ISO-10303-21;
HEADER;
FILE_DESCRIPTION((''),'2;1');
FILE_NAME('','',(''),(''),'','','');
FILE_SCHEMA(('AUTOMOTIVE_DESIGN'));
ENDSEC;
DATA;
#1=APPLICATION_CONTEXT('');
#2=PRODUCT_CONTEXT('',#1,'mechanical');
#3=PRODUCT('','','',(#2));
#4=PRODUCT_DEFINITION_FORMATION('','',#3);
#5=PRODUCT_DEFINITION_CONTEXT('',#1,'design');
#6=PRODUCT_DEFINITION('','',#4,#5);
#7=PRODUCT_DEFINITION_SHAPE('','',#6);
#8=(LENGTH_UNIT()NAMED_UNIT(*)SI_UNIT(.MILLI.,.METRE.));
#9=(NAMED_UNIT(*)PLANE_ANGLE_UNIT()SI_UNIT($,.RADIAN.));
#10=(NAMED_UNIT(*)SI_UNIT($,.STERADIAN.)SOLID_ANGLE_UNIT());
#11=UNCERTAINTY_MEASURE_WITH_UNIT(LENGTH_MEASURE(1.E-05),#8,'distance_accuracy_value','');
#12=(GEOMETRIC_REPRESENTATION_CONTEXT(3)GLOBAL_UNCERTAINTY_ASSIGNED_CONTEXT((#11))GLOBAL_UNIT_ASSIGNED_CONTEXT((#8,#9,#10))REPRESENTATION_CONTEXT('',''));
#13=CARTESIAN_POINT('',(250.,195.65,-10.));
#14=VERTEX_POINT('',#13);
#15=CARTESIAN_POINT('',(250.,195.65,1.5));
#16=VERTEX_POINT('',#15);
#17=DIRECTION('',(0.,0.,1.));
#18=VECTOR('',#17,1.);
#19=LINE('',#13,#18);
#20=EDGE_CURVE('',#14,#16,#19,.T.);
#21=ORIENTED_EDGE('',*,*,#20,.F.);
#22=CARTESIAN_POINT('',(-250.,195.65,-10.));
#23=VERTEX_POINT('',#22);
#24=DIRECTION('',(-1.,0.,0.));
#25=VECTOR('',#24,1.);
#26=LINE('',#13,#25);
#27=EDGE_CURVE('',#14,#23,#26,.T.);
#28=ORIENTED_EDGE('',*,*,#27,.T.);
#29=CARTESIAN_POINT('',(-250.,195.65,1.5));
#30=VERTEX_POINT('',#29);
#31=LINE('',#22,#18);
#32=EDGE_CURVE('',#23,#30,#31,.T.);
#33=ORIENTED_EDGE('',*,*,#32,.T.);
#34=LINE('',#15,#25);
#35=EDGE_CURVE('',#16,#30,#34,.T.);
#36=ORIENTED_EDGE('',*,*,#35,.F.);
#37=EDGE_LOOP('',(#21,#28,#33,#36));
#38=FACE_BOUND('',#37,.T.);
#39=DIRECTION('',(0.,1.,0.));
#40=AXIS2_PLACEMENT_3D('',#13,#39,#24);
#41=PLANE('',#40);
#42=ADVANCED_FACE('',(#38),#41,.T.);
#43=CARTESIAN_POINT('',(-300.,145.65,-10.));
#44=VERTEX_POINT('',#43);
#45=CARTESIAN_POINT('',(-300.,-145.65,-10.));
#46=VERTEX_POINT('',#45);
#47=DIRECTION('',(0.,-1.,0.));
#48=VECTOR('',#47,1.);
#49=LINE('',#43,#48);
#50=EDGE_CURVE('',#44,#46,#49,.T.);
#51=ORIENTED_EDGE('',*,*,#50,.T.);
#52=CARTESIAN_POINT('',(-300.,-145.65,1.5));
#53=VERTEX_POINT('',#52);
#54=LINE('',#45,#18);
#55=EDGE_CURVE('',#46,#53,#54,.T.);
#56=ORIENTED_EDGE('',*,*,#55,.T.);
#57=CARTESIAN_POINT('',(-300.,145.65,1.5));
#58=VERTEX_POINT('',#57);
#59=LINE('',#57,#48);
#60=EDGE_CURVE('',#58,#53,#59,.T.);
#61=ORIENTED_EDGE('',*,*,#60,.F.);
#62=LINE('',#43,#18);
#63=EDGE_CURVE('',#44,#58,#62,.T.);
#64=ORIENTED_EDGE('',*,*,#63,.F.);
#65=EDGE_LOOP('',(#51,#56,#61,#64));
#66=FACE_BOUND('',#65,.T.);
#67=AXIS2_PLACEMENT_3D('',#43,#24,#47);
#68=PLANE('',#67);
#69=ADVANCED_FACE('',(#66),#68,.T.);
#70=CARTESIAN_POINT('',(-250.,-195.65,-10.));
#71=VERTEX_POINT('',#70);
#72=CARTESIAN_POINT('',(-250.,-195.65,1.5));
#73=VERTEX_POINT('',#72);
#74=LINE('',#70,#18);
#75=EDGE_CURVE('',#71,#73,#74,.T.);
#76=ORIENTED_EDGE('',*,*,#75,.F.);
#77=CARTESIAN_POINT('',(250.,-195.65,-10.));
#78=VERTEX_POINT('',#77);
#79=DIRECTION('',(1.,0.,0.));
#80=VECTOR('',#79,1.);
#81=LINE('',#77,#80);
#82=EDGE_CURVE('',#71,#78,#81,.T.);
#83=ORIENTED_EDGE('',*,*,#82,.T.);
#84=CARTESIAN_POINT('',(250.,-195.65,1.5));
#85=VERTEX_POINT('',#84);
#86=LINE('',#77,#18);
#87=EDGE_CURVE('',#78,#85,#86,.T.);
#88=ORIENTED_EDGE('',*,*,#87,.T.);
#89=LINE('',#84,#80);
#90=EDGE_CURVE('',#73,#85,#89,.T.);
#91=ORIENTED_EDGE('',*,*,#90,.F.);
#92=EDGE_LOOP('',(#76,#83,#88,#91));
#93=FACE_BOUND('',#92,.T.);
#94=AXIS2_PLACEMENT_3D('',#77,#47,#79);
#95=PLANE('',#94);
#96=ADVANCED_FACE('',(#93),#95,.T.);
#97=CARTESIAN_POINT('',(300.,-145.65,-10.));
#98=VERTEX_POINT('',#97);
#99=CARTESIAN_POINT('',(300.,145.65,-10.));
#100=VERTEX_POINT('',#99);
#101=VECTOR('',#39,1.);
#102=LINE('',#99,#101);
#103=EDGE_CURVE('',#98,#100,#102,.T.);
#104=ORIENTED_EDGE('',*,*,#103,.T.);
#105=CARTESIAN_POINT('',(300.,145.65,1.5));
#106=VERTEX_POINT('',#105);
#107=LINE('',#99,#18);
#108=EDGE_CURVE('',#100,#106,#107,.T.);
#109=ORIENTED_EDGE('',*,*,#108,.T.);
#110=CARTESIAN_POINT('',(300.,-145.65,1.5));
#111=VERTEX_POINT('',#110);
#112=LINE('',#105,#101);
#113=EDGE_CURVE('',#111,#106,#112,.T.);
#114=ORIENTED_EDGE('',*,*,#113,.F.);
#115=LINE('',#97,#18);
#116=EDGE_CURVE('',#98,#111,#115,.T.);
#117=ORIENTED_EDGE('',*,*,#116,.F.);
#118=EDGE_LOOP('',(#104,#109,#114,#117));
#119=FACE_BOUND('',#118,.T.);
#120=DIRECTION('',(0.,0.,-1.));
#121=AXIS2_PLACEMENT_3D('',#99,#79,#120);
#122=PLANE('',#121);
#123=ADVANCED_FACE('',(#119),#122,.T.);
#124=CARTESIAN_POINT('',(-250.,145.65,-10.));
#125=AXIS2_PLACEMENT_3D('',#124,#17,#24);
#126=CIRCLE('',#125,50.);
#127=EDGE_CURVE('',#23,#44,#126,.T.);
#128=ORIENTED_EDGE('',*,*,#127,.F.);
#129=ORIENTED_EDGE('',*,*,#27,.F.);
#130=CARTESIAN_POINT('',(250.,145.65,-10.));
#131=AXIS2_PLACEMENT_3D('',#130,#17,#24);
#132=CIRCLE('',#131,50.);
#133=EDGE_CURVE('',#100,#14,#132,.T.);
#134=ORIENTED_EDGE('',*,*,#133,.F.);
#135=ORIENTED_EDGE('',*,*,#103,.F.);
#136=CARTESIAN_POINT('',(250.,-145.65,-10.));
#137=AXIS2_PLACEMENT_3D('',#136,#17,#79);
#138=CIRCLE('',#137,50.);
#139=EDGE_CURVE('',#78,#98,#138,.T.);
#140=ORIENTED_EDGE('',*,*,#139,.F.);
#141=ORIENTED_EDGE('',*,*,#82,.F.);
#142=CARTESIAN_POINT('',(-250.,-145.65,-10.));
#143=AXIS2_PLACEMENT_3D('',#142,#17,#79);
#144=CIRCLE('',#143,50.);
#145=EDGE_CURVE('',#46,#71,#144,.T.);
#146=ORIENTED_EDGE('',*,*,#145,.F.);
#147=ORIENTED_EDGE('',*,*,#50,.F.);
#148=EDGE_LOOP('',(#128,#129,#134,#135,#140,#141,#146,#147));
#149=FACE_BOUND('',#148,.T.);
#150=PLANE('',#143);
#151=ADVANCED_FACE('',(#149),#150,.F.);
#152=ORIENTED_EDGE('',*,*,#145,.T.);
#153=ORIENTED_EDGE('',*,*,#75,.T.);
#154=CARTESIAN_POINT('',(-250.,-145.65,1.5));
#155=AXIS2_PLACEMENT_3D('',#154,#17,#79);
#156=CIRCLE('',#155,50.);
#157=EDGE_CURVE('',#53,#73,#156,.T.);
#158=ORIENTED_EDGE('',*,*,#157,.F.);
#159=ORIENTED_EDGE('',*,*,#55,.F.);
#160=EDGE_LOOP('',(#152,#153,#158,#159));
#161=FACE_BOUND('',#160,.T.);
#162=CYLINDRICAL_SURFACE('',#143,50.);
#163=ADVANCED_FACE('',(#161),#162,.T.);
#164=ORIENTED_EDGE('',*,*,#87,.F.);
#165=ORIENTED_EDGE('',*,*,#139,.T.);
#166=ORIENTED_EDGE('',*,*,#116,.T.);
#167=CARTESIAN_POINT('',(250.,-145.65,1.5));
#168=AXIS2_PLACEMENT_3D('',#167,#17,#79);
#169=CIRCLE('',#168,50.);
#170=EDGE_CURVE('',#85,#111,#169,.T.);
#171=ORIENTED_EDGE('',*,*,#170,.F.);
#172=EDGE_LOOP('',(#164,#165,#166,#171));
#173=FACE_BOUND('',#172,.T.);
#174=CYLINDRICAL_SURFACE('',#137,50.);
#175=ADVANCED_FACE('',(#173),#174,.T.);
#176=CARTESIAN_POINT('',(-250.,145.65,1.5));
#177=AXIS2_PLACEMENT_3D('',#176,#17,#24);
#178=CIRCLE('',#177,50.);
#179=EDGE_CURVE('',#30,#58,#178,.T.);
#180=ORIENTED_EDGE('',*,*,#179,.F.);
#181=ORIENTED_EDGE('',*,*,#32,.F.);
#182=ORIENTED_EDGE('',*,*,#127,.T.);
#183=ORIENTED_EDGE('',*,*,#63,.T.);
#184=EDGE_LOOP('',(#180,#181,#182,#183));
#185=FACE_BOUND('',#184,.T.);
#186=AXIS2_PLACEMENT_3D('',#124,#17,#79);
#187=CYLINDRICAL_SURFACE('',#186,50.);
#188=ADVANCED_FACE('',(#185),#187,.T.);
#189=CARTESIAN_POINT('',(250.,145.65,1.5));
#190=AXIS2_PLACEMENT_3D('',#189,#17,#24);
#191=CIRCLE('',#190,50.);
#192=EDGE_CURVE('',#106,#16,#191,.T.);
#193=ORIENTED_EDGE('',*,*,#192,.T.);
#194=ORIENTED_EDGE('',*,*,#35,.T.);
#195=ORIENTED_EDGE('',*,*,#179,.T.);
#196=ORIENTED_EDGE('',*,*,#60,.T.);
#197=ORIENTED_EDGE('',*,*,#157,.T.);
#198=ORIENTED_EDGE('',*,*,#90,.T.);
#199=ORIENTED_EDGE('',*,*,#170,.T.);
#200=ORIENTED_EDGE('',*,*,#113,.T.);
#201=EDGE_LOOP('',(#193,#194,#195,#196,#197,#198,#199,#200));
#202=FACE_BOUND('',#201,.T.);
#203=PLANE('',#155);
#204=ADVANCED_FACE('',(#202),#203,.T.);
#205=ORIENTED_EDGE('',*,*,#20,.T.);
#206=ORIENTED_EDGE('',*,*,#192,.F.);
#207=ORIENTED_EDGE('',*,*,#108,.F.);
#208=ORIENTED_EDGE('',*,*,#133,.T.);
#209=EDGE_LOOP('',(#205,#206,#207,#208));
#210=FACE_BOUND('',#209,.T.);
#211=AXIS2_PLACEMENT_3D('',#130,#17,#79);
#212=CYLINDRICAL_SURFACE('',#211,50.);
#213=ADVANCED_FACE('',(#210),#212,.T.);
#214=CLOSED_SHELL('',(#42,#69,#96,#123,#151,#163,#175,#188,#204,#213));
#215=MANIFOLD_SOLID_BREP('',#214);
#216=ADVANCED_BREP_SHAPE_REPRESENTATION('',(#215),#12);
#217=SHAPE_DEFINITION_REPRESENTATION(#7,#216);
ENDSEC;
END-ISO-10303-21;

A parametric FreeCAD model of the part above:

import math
import FreeCAD as App
import Part
import Sketcher

V = App.Vector
Q = App.Units.Quantity

doc = App.newDocument("Part")
params = doc.addObject("Spreadsheet::Sheet", "Params")
for row, (alias, value) in enumerate([
    ("sketch1_radius", "50 mm"),
    ("sketch1_width", "500 mm"),
    ("sketch1_height", "291.3 mm"),
    ("pad1_length", "1.5 mm"),
    ("pad1_length2", "10 mm"),
], start=1):
    params.set(f"A{row}", alias)
    params.set(f"B{row}", "=" + value)
    params.setAlias(f"B{row}", alias)

body = doc.addObject("PartDesign::Body", "Body")

sketch1 = body.newObject("Sketcher::SketchObject", "Sketch")
sketch1.AttachmentSupport = (doc.getObject("XY_Plane"), [""])
sketch1.MapMode = "FlatFace"
sketch1.addGeometry([
    Part.LineSegment(V(250, 195.65, 0), V(-250, 195.65, 0)),
    Part.ArcOfCircle(Part.Circle(V(-250, 145.65, 0), V(0, 0, 1), 50), math.radians(90), math.radians(180)),
    Part.LineSegment(V(-300, 145.65, 0), V(-300, -145.65, 0)),
    Part.ArcOfCircle(Part.Circle(V(-250, -145.65, 0), V(0, 0, 1), 50), math.radians(-180), math.radians(-90)),
    Part.LineSegment(V(-250, -195.65, 0), V(250, -195.65, 0)),
    Part.ArcOfCircle(Part.Circle(V(250, -145.65, 0), V(0, 0, 1), 50), math.radians(-90), math.radians(0)),
    Part.LineSegment(V(300, -145.65, 0), V(300, 145.65, 0)),
    Part.ArcOfCircle(Part.Circle(V(250, 145.65, 0), V(0, 0, 1), 50), math.radians(0), math.radians(90)),
], False)
sketch1.addConstraint([
    Sketcher.Constraint("Tangent", 0, 2, 1, 1),
    Sketcher.Constraint("Tangent", 1, 2, 2, 1),
    Sketcher.Constraint("Tangent", 2, 2, 3, 1),
    Sketcher.Constraint("Tangent", 3, 2, 4, 1),
    Sketcher.Constraint("Tangent", 4, 2, 5, 1),
    Sketcher.Constraint("Tangent", 5, 2, 6, 1),
    Sketcher.Constraint("Tangent", 6, 2, 7, 1),
    Sketcher.Constraint("Tangent", 7, 2, 0, 1),
    Sketcher.Constraint("Horizontal", 0),
    Sketcher.Constraint("Vertical", 2),
    Sketcher.Constraint("Horizontal", 4),
    Sketcher.Constraint("Vertical", 6),
    Sketcher.Constraint("Equal", 1, 3),
    Sketcher.Constraint("Equal", 3, 5),
    Sketcher.Constraint("Equal", 5, 7),
    Sketcher.Constraint("Symmetric", 1, 3, 5, 3, -1, 1),
    Sketcher.Constraint("Radius", 1, Q("50 mm")),
    Sketcher.Constraint("DistanceX", 0, 2, 0, 1, Q("500 mm")),
    Sketcher.Constraint("DistanceY", 2, 2, 2, 1, Q("291.3 mm")),
])
sketch1.setExpression("Constraints[16]", "Params.sketch1_radius")
sketch1.setExpression("Constraints[17]", "Params.sketch1_width")
sketch1.setExpression("Constraints[18]", "Params.sketch1_height")
pad1 = body.newObject("PartDesign::Pad", "Pad")
pad1.Profile = sketch1
pad1.Type = "TwoLengths"
pad1.setExpression("Length", "Params.pad1_length")
pad1.setExpression("Length2", "Params.pad1_length2")

doc.recompute()
